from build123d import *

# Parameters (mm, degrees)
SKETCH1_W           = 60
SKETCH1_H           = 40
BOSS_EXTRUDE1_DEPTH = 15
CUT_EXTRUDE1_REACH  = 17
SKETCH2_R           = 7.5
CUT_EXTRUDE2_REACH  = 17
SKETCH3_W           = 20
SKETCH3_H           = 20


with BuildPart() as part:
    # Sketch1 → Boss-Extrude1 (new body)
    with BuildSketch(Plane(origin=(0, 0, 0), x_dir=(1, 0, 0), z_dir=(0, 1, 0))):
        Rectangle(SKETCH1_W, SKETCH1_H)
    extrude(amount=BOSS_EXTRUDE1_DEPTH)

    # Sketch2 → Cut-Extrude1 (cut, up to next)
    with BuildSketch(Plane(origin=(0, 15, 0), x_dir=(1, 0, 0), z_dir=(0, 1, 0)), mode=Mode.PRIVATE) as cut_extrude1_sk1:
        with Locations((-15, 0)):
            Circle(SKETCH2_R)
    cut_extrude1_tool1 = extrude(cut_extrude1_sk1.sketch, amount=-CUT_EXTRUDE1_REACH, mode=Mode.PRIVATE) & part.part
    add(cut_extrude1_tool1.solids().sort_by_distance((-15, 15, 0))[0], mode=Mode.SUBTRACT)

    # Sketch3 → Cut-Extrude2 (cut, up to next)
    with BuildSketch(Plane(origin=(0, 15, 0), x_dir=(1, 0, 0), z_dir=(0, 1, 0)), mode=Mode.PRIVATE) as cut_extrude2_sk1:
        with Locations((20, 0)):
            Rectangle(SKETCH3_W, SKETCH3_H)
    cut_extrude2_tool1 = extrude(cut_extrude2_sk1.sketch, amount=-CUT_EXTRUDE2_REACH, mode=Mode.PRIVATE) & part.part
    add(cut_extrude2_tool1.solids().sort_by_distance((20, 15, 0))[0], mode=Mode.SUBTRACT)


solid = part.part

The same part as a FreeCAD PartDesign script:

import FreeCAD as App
import Part
import Sketcher
Q = App.Units.Quantity

doc = App.newDocument("Part")
body = doc.addObject("PartDesign::Body", "Body")

sketch1 = body.newObject("Sketcher::SketchObject", "Sketch")
sketch1.AttachmentSupport = (doc.getObject("XZ_Plane"), [""])
sketch1.MapMode = "FlatFace"
sketch1.addGeometry([
    Part.LineSegment(App.Vector(-30, -20, 0), App.Vector(-30, 20, 0)),
    Part.LineSegment(App.Vector(-30, 20, 0), App.Vector(30, 20, 0)),
    Part.LineSegment(App.Vector(30, 20, 0), App.Vector(30, -20, 0)),
    Part.LineSegment(App.Vector(30, -20, 0), App.Vector(-30, -20, 0)),
], False)
sketch1.addConstraint([
    Sketcher.Constraint("Coincident", 0, 2, 1, 1),
    Sketcher.Constraint("Coincident", 1, 2, 2, 1),
    Sketcher.Constraint("Coincident", 2, 2, 3, 1),
    Sketcher.Constraint("Coincident", 3, 2, 0, 1),
    Sketcher.Constraint("Vertical", 0),
    Sketcher.Constraint("Horizontal", 1),
    Sketcher.Constraint("Vertical", 2),
    Sketcher.Constraint("Horizontal", 3),
    Sketcher.Constraint("Symmetric", 0, 2, 2, 2, -1, 1),
    Sketcher.Constraint("DistanceX", 1, 1, 1, 2, Q("60 mm")),
    Sketcher.Constraint("DistanceY", 0, 1, 0, 2, Q("40 mm")),
])
pad1 = body.newObject("PartDesign::Pad", "Pad")
pad1.Profile = sketch1
pad1.Length = 15
pad1.Reversed = True

sketch2 = body.newObject("Sketcher::SketchObject", "Sketch001")
sketch2.AttachmentSupport = (doc.getObject("XZ_Plane"), [""])
sketch2.MapMode = "FlatFace"
sketch2.AttachmentOffset = App.Placement(App.Vector(0, 0, -15), App.Rotation())
sketch2.addGeometry(Part.Circle(App.Vector(-15, 0, 0), App.Vector(0, 0, 1), 8), False)
sketch2.addConstraint([
    Sketcher.Constraint("PointOnObject", 0, 3, -1),
    Sketcher.Constraint("Diameter", 0, Q("15 mm")),
    Sketcher.Constraint("DistanceX", 0, 3, -1, 1, Q("15 mm")),
])
pocket1 = body.newObject("PartDesign::Pocket", "Pocket")
pocket1.Profile = sketch2
pocket1.Type = "UpToFirst"
pocket1.Reversed = True

sketch3 = body.newObject("Sketcher::SketchObject", "Sketch002")
sketch3.AttachmentSupport = (doc.getObject("XZ_Plane"), [""])
sketch3.MapMode = "FlatFace"
sketch3.AttachmentOffset = App.Placement(App.Vector(0, 0, -15), App.Rotation())
sketch3.addGeometry([
    Part.LineSegment(App.Vector(10, -10, 0), App.Vector(10, 10, 0)),
    Part.LineSegment(App.Vector(10, 10, 0), App.Vector(30, 10, 0)),
    Part.LineSegment(App.Vector(30, 10, 0), App.Vector(30, -10, 0)),
    Part.LineSegment(App.Vector(30, -10, 0), App.Vector(10, -10, 0)),
], False)
sketch3.addConstraint([
    Sketcher.Constraint("Coincident", 0, 2, 1, 1),
    Sketcher.Constraint("Coincident", 1, 2, 2, 1),
    Sketcher.Constraint("Coincident", 2, 2, 3, 1),
    Sketcher.Constraint("Coincident", 3, 2, 0, 1),
    Sketcher.Constraint("Vertical", 0),
    Sketcher.Constraint("Horizontal", 1),
    Sketcher.Constraint("Vertical", 2),
    Sketcher.Constraint("Horizontal", 3),
    Sketcher.Constraint("Equal", 3, 0),
    Sketcher.Constraint("DistanceX", 1, 1, 1, 2, Q("20 mm")),
    Sketcher.Constraint("DistanceX", -1, 1, 0, 2, Q("10 mm")),
    Sketcher.Constraint("DistanceY", -1, 1, 0, 2, Q("10 mm")),
])
pocket2 = body.newObject("PartDesign::Pocket", "Pocket001")
pocket2.Profile = sketch3
pocket2.Type = "UpToFirst"
pocket2.Reversed = True

doc.recompute()
